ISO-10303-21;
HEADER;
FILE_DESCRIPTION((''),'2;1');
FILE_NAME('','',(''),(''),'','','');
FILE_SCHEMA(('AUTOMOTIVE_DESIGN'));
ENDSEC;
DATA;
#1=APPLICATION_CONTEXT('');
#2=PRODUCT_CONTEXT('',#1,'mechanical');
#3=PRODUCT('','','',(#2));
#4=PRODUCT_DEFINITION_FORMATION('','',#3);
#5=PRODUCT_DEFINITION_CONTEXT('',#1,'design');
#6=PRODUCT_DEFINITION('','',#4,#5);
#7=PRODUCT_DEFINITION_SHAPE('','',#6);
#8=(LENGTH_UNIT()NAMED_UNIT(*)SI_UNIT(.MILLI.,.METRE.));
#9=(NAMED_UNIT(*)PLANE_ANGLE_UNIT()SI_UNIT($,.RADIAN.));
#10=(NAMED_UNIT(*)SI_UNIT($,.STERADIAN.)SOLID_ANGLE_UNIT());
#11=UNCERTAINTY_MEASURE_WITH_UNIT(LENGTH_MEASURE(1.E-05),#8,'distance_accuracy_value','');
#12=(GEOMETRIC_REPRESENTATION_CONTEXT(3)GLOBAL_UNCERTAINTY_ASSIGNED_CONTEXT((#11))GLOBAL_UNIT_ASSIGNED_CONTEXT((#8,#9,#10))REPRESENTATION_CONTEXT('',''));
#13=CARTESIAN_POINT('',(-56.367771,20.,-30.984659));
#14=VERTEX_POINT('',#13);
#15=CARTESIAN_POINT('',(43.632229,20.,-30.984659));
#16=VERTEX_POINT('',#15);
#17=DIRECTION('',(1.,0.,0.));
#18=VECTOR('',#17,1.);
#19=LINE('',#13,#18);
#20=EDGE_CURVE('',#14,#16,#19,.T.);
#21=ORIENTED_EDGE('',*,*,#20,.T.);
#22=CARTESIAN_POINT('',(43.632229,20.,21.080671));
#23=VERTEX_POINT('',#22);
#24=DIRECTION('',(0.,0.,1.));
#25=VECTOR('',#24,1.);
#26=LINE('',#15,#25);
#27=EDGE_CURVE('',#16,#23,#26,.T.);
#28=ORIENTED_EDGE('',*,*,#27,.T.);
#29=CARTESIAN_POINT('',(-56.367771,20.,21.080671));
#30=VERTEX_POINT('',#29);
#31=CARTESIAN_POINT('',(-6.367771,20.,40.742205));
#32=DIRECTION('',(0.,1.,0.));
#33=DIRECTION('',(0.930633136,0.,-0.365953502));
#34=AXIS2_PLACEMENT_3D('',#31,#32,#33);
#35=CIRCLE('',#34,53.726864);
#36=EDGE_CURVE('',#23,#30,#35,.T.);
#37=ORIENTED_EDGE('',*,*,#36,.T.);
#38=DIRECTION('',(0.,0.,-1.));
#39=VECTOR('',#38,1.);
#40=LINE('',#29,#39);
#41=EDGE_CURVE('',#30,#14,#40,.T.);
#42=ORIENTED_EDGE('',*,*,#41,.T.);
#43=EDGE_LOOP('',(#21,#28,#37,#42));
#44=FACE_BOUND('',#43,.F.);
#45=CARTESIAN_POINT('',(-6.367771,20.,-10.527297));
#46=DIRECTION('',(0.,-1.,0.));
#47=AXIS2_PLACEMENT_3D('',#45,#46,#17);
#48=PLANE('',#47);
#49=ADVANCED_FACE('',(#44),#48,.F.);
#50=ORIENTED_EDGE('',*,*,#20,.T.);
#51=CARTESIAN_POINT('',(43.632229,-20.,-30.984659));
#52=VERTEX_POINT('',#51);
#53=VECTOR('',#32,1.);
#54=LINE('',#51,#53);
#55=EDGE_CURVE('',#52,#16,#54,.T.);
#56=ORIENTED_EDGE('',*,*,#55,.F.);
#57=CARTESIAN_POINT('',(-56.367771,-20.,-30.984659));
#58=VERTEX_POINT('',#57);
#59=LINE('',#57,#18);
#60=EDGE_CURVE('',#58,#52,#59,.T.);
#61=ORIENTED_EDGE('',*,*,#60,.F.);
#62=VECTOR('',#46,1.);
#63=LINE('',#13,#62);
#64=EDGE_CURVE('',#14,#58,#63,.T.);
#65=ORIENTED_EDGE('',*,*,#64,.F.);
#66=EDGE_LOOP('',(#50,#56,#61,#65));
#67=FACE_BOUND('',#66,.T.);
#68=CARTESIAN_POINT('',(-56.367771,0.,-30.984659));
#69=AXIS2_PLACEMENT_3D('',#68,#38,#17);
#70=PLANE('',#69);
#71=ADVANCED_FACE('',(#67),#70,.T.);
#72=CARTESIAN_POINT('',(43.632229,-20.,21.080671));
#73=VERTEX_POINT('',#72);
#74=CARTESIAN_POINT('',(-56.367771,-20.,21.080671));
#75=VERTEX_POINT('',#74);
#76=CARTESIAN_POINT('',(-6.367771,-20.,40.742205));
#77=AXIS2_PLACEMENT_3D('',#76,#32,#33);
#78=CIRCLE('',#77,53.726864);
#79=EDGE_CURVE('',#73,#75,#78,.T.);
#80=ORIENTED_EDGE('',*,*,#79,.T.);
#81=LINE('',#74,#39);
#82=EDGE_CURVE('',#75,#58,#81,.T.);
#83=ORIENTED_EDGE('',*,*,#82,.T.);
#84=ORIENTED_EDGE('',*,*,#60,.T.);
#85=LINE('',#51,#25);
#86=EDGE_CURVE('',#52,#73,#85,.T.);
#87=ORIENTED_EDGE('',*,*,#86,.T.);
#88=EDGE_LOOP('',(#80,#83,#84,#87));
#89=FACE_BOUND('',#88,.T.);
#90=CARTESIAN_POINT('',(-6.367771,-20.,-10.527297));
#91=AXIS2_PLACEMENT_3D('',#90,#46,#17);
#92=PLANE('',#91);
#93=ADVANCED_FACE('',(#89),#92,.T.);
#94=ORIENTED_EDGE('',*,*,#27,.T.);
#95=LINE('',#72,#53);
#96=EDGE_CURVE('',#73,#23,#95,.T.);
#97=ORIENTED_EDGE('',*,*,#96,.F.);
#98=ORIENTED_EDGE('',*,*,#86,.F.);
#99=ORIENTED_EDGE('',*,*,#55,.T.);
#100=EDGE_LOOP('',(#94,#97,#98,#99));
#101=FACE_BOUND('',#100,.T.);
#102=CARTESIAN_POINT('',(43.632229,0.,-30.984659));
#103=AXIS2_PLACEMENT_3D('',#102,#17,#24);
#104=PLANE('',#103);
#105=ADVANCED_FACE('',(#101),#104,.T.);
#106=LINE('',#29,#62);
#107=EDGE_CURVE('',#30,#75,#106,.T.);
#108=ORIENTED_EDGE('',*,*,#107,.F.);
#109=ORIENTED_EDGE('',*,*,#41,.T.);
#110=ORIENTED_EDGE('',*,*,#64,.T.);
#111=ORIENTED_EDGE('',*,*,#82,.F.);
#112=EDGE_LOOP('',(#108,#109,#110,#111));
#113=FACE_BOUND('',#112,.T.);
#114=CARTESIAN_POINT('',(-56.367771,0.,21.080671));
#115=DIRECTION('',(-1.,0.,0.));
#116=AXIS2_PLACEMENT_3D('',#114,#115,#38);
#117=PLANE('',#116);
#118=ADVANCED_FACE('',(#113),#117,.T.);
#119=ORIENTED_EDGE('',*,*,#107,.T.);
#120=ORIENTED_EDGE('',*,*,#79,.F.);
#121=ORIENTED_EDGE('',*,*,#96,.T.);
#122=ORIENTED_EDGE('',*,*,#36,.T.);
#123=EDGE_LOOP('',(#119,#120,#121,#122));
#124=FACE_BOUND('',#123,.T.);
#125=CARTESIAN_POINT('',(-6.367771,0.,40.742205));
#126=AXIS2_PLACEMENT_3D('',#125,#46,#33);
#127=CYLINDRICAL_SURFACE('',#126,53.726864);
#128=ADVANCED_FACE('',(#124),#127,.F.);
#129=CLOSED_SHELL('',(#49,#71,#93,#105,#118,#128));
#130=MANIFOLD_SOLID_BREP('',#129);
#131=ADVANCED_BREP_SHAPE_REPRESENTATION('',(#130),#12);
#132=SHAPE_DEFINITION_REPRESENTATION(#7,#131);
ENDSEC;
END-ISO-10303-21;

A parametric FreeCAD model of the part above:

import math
import FreeCAD as App
import Part
import Sketcher
from FreeCAD import Vector

doc = App.newDocument("Part")
body = doc.addObject("PartDesign::Body", "Body")

sketch1 = body.newObject("Sketcher::SketchObject", "Sketch")
sketch1.AttachmentSupport = (doc.getObject("XZ_Plane"), [""])
sketch1.MapMode = "FlatFace"
sketch1.addGeometry([
    Part.ArcOfCircle(Part.Circle(Vector(-6, 41, 0), Vector(0, 0, 1), 54), math.radians(-159), math.radians(-21)),
    Part.LineSegment(Vector(-56, 21, 0), Vector(-56, -31, 0)),
    Part.LineSegment(Vector(-56, -31, 0), Vector(44, -31, 0)),
    Part.LineSegment(Vector(44, -31, 0), Vector(44, 21, 0)),
], False)
sketch1.addConstraint([
    Sketcher.Constraint("Coincident", 0, 1, 1, 1),
    Sketcher.Constraint("Coincident", 1, 2, 2, 1),
    Sketcher.Constraint("Coincident", 2, 2, 3, 1),
    Sketcher.Constraint("Coincident", 3, 2, 0, 2),
    Sketcher.Constraint("Vertical", 1),
    Sketcher.Constraint("Horizontal", 2),
    Sketcher.Constraint("Vertical", 3),
    Sketcher.Constraint("Horizontal", 0, 1, 3, 2),
    Sketcher.Constraint("DistanceX", 2, 1, 2, 2, 100.0),
    Sketcher.Constraint("Radius", 0, 53.726864),
    Sketcher.Constraint("DistanceY", 1, 2, 1, 1, 52.06533),
    Sketcher.Constraint("DistanceX", 0, 3, -1, 1, 6.367771),
    Sketcher.Constraint("DistanceY", -1, 1, 0, 1, 21.080671),
])
pad1 = body.newObject("PartDesign::Pad", "Pad")
pad1.Profile = sketch1
pad1.Length = 40
pad1.Midplane = True

doc.recompute()
